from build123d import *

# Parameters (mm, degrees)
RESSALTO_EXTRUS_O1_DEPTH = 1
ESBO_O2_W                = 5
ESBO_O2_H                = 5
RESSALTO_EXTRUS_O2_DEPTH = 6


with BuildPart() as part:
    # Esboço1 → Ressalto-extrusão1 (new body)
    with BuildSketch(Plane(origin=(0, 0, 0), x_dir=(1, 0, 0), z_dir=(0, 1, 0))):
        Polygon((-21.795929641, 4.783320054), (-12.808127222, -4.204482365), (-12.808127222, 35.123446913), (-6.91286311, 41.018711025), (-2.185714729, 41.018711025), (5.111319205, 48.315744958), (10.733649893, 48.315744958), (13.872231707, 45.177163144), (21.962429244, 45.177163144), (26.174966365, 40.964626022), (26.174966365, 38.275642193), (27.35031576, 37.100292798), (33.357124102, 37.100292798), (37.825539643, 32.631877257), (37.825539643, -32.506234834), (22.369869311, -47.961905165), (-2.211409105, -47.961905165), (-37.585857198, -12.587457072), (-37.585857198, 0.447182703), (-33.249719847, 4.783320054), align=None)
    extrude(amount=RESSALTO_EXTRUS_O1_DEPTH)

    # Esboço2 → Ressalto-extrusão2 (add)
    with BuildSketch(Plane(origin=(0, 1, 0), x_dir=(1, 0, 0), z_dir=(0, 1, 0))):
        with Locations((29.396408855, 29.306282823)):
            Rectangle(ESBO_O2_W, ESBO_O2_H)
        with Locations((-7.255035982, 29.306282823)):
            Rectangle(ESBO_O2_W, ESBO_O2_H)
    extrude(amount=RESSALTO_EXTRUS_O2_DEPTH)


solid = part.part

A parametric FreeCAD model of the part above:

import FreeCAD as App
import Part
import Sketcher

V = App.Vector
Q = App.Units.Quantity


def add_polygon(sketch, points):
    """Adds a closed chain of lines whose ends are joined by coincident constraints."""
    first, n = sketch.GeometryCount, len(points)
    for a, b in zip(points, points[1:] + points[:1]):
        sketch.addGeometry(Part.LineSegment(App.Vector(*a, 0), App.Vector(*b, 0)), False)
    for i in range(n):
        sketch.addConstraint(Sketcher.Constraint("Coincident", first + i, 2, first + (i + 1) % n, 1))

doc = App.newDocument("Part")
body = doc.addObject("PartDesign::Body", "Body")

sketch1 = body.newObject("Sketcher::SketchObject", "Sketch")
sketch1.AttachmentSupport = (doc.getObject("XZ_Plane"), [""])
sketch1.MapMode = "FlatFace"
add_polygon(sketch1, [(-12.8, 4.2), (-21.8, -4.8), (-33.2, -4.8), (-37.6, -0.4), (-37.6, 12.6), (-2.2, 48), (22.4, 48), (37.8, 32.5), (37.8, -32.6), (33.4, -37.1), (27.4, -37.1), (26.2, -38.3), (26.2, -41), (22, -45.2), (13.9, -45.2), (10.7, -48.3), (5.1, -48.3), (-2.2, -41), (-6.9, -41), (-12.8, -35.1)])
sketch1.addConstraint(Sketcher.Constraint("Horizontal", 1))
sketch1.addConstraint(Sketcher.Constraint("Vertical", 3))
sketch1.addConstraint(Sketcher.Constraint("Horizontal", 5))
sketch1.addConstraint(Sketcher.Constraint("Vertical", 7))
sketch1.addConstraint(Sketcher.Constraint("Horizontal", 9))
sketch1.addConstraint(Sketcher.Constraint("Vertical", 11))
sketch1.addConstraint(Sketcher.Constraint("Horizontal", 13))
sketch1.addConstraint(Sketcher.Constraint("Horizontal", 15))
sketch1.addConstraint(Sketcher.Constraint("Horizontal", 17))
sketch1.addConstraint(Sketcher.Constraint("Vertical", 19))
sketch1.addConstraint(Sketcher.Constraint("Perpendicular", 0, 2))
sketch1.addConstraint(Sketcher.Constraint("Perpendicular", 2, 4))
sketch1.addConstraint(Sketcher.Constraint("Perpendicular", 4, 6))
sketch1.addConstraint(Sketcher.Constraint("Perpendicular", 6, 8))
sketch1.addConstraint(Sketcher.Constraint("Parallel", 8, 10))
sketch1.addConstraint(Sketcher.Constraint("Parallel", 10, 12))
sketch1.addConstraint(Sketcher.Constraint("Parallel", 12, 14))
sketch1.addConstraint(Sketcher.Constraint("Perpendicular", 14, 16))
sketch1.addConstraint(Sketcher.Constraint("Parallel", 16, 18))
sketch1.addConstraint(Sketcher.Constraint("Angle", 0, Q("-135 deg")))
sketch1.addConstraint(Sketcher.Constraint("DistanceX", 1, 2, 1, 1, Q("11.45379 mm")))
sketch1.addConstraint(Sketcher.Constraint("DistanceX", 5, 1, 5, 2, Q("24.581278 mm")))
sketch1.addConstraint(Sketcher.Constraint("DistanceX", 9, 2, 9, 1, Q("6.006808 mm")))
sketch1.addConstraint(Sketcher.Constraint("DistanceX", 15, 2, 15, 1, Q("5.622331 mm")))
sketch1.addConstraint(Sketcher.Constraint("DistanceX", 17, 2, 17, 1, Q("4.727148 mm")))
sketch1.addConstraint(Sketcher.Constraint("DistanceY", 3, 1, 3, 2, Q("13.03464 mm")))
sketch1.addConstraint(Sketcher.Constraint("DistanceY", 19, 1, 19, 2, Q("39.327929 mm")))
sketch1.addConstraint(Sketcher.Constraint("DistanceX", 0, 2, 5, 2, Q("44.165799 mm")))
sketch1.addConstraint(Sketcher.Constraint("DistanceY", 15, 2, 18, 2, Q("13.192298 mm")))
sketch1.addConstraint(Sketcher.Constraint("Distance", 6, Q("21.857619 mm")))
sketch1.addConstraint(Sketcher.Constraint("DistanceX", 13, 2, 13, 1, Q("8.090198 mm")))
sketch1.addConstraint(Sketcher.Constraint("DistanceY", 7, 2, 7, 1, Q("65.138112 mm")))
sketch1.addConstraint(Sketcher.Constraint("DistanceY", 11, 2, 11, 1, Q("2.688984 mm")))
sketch1.addConstraint(Sketcher.Constraint("DistanceX", 0, 2, -1, 1, Q("21.79593 mm")))
sketch1.addConstraint(Sketcher.Constraint("DistanceY", 0, 2, -1, 1, Q("4.78332 mm")))
sketch1.addConstraint(Sketcher.Constraint("DistanceX", -1, 1, 12, 2, Q("21.962429 mm")))
sketch1.addConstraint(Sketcher.Constraint("DistanceX", -1, 1, 14, 2, Q("10.73365 mm")))
sketch1.addConstraint(Sketcher.Constraint("DistanceY", 16, 2, -1, 1, Q("41.018711 mm")))
sketch1.addConstraint(Sketcher.Constraint("DistanceX", 2, 2, 8, 2, Q("70.942981 mm")))
sketch1.addConstraint(Sketcher.Constraint("DistanceX", 10, 2, 9, 2, Q("1.175349 mm")))
pad1 = body.newObject("PartDesign::Pad", "Pad")
pad1.Profile = sketch1
pad1.Length = 1
pad1.Reversed = True

sketch2 = body.newObject("Sketcher::SketchObject", "Sketch001")
sketch2.AttachmentSupport = (doc.getObject("XZ_Plane"), [""])
sketch2.MapMode = "FlatFace"
sketch2.AttachmentOffset = App.Placement(V(0, 0, -1), App.Rotation())
add_polygon(sketch2, [(27, -32), (27, -27), (32, -27), (32, -32)])
add_polygon(sketch2, [(-10, -32), (-10, -27), (-5, -27), (-5, -32)])
sketch2.addConstraint(Sketcher.Constraint("Vertical", 0))
sketch2.addConstraint(Sketcher.Constraint("Horizontal", 1))
sketch2.addConstraint(Sketcher.Constraint("Vertical", 2))
sketch2.addConstraint(Sketcher.Constraint("Horizontal", 3))
sketch2.addConstraint(Sketcher.Constraint("Vertical", 4))
sketch2.addConstraint(Sketcher.Constraint("Horizontal", 5))
sketch2.addConstraint(Sketcher.Constraint("Vertical", 6))
sketch2.addConstraint(Sketcher.Constraint("Horizontal", 7))
sketch2.addConstraint(Sketcher.Constraint("Horizontal", 1, 2, 4, 2))
sketch2.addConstraint(Sketcher.Constraint("Horizontal", 3, 2, 6, 2))
sketch2.addConstraint(Sketcher.Constraint("Equal", 3, 5))
sketch2.addConstraint(Sketcher.Constraint("Equal", 7, 0))
sketch2.addConstraint(Sketcher.Constraint("DistanceX", 1, 1, 1, 2, Q("5 mm")))
sketch2.addConstraint(Sketcher.Constraint("DistanceX", -1, 1, 0, 2, Q("26.896409 mm")))
sketch2.addConstraint(Sketcher.Constraint("DistanceY", 0, 2, -1, 1, Q("26.806283 mm")))
sketch2.addConstraint(Sketcher.Constraint("DistanceX", 4, 2, -1, 1, Q("9.755036 mm")))
pad2 = body.newObject("PartDesign::Pad", "Pad001")
pad2.Profile = sketch2
pad2.Length = 6
pad2.Reversed = True

doc.recompute()
